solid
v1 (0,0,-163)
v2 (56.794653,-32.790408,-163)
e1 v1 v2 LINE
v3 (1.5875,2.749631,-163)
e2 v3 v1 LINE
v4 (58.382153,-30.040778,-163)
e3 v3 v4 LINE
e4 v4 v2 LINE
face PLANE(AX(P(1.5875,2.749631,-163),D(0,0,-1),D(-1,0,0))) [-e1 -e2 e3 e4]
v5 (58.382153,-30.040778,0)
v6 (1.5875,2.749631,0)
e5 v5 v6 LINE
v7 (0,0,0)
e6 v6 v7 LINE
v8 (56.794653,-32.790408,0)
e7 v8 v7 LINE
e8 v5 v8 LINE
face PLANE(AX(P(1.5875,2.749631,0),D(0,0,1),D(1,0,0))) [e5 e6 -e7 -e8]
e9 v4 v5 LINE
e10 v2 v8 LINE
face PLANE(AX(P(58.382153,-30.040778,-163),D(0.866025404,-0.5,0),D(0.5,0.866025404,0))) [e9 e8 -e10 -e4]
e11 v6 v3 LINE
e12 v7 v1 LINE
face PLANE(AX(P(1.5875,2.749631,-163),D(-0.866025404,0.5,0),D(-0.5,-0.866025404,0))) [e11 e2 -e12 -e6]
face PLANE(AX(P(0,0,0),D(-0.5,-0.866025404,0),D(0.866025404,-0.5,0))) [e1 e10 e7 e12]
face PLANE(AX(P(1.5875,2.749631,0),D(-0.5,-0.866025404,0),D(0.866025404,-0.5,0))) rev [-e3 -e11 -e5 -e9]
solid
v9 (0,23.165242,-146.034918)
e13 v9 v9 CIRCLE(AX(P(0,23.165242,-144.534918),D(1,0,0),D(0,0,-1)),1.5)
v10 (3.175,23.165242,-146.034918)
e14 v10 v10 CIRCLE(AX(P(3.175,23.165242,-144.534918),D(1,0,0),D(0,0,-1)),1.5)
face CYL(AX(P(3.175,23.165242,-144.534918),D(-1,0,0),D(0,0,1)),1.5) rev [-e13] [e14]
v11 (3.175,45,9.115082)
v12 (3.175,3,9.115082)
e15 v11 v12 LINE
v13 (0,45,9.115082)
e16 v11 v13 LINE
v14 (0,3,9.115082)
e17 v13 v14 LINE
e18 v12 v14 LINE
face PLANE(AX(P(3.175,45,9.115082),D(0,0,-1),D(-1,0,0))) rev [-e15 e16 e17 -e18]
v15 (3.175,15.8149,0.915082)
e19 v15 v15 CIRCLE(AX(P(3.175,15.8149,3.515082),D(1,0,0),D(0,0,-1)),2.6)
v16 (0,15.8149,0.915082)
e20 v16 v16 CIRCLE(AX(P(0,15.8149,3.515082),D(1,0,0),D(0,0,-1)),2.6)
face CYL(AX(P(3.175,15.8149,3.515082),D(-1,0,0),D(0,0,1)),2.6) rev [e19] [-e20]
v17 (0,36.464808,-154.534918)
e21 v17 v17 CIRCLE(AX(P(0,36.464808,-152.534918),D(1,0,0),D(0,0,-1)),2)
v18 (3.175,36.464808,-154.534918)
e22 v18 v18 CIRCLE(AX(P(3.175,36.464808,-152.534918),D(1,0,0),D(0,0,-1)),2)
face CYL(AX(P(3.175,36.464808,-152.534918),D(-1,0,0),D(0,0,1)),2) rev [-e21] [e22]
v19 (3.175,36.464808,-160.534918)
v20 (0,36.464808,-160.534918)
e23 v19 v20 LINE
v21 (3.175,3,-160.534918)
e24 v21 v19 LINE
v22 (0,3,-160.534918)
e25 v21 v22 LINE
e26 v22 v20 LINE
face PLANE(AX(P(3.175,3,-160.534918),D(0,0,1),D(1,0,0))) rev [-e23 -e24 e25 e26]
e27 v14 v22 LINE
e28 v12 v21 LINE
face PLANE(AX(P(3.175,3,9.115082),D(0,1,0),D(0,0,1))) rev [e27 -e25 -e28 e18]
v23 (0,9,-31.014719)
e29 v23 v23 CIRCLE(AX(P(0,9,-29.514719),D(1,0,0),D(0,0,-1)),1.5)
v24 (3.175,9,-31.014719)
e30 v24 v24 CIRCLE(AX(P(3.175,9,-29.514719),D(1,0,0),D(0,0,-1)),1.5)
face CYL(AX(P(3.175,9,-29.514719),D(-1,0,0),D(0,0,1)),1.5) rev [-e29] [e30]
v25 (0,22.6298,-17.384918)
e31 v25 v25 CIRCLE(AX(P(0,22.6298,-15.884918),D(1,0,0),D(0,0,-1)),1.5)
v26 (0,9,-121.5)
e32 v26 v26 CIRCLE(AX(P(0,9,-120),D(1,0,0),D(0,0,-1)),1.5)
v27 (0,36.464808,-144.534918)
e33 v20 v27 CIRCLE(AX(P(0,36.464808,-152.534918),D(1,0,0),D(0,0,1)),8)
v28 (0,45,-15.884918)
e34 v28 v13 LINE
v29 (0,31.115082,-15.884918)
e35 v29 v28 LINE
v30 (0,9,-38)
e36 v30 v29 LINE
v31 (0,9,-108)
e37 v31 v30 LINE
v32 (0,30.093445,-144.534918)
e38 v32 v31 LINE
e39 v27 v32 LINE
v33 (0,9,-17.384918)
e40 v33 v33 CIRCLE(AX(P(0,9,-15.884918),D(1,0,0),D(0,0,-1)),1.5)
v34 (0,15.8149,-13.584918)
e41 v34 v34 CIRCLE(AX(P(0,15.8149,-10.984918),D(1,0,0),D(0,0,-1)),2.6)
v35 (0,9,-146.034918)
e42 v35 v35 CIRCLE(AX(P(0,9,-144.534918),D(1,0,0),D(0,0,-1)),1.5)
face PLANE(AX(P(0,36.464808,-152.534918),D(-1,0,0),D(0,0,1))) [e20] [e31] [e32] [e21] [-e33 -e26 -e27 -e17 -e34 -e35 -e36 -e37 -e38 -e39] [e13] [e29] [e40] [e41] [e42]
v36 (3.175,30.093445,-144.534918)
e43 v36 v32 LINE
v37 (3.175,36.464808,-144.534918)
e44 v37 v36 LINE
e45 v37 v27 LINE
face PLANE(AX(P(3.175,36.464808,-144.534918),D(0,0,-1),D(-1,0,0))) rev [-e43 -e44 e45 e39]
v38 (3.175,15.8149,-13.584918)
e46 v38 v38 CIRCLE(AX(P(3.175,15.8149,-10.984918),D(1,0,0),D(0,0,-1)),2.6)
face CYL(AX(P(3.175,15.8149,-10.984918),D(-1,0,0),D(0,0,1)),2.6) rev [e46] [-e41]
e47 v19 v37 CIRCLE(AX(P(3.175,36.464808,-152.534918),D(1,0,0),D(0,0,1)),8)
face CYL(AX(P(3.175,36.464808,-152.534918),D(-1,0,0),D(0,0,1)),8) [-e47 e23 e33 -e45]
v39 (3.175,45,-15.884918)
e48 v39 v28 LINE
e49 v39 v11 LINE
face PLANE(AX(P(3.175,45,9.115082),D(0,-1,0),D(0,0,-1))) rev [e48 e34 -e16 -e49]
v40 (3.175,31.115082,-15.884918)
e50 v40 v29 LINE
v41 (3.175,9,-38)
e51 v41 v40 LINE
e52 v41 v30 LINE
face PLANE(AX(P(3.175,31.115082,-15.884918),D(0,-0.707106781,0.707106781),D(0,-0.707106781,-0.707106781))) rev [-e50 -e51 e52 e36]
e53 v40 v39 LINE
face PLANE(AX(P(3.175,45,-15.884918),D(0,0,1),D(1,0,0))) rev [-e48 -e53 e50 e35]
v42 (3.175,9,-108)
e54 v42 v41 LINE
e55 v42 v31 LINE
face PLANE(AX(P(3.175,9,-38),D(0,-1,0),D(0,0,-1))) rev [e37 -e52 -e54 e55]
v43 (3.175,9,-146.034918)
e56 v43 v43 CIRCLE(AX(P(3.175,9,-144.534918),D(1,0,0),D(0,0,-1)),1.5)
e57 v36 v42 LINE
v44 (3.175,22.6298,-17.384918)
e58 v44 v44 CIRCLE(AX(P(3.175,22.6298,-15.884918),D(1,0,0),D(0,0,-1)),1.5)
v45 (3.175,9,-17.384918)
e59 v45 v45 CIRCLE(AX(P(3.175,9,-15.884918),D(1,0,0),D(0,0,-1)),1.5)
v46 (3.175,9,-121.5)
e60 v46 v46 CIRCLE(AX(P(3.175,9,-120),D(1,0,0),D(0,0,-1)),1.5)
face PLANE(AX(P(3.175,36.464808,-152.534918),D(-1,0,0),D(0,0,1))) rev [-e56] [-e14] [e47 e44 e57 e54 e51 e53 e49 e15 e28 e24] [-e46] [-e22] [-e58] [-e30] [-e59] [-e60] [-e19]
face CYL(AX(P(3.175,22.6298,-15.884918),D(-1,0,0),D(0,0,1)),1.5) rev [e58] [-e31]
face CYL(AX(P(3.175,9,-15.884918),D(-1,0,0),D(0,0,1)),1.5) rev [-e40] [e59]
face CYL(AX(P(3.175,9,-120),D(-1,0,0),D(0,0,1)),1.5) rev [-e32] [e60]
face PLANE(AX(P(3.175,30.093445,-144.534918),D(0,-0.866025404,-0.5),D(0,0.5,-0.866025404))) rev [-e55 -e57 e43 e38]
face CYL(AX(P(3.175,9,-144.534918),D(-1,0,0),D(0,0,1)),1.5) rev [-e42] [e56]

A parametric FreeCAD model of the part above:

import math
import FreeCAD as App
import Part
import Sketcher

V = App.Vector
Q = App.Units.Quantity


def add_polygon(sketch, points):
    """Adds a closed chain of lines whose ends are joined by coincident constraints."""
    first, n = sketch.GeometryCount, len(points)
    for a, b in zip(points, points[1:] + points[:1]):
        sketch.addGeometry(Part.LineSegment(App.Vector(*a, 0), App.Vector(*b, 0)), False)
    for i in range(n):
        sketch.addConstraint(Sketcher.Constraint("Coincident", first + i, 2, first + (i + 1) % n, 1))

doc = App.newDocument("Part")
params = doc.addObject("Spreadsheet::Sheet", "Params")
for row, (alias, value) in enumerate([
    ("sketch1_width", "163 mm"),
    ("pad1_length", "3.175 mm"),
    ("sketch2_diameter", "3 mm"),
    ("sketch2_diameter2", "4 mm"),
    ("sketch2_radius", "8 mm"),
    ("sketch2_diameter3", "5.2 mm"),
    ("sketch2_width", "42 mm"),
    ("pad2_length", "3.175 mm"),
], start=1):
    params.set(f"A{row}", alias)
    params.set(f"B{row}", "=" + value)
    params.setAlias(f"B{row}", alias)

body = doc.addObject("PartDesign::Body", "Body")

# Sketch on an angled plane
sketch1 = body.newObject("Sketcher::SketchObject", "Sketch")
sketch1.Placement = App.Placement(V(0, 0, 0), App.Rotation(V(0, 0, -1), V(0.866025404, -0.5, 0), V(-0.5, -0.866025404, 0), "ZXY"))
add_polygon(sketch1, [(0, 65.580817), (0, 0), (163, 0), (163, 65.580817)])  # lines 0-3
sketch1.addConstraint(Sketcher.Constraint("Vertical", 0))
sketch1.addConstraint(Sketcher.Constraint("Horizontal", 1))
sketch1.addConstraint(Sketcher.Constraint("Vertical", 2))
sketch1.addConstraint(Sketcher.Constraint("Horizontal", 3))
sketch1.addConstraint(Sketcher.Constraint("Coincident", 0, 2, -1, 1))
sketch1.addConstraint(Sketcher.Constraint("DistanceX", 1, 1, 1, 2, Q("163 mm")))
sketch1.addConstraint(Sketcher.Constraint("DistanceY", 0, 2, 0, 1, Q("65.580817 mm")))
sketch1.setExpression("Constraints[9]", "Params.sketch1_width")
pad1 = body.newObject("PartDesign::Pad", "Pad")
pad1.Profile = sketch1
pad1.setExpression("Length", "Params.pad1_length")
pad1.Reversed = True
body2 = doc.addObject("PartDesign::Body", "Body001")

# Sketch on YZ plane
sketch2 = body2.newObject("Sketcher::SketchObject", "Sketch001")
sketch2.AttachmentSupport = (doc.getObject("YZ_Plane001"), [""])
sketch2.MapMode = "FlatFace"
sketch2.addGeometry(Part.LineSegment(V(45, -15.884918, 0), V(45, 9.115082, 0)), False)
sketch2.addGeometry(Part.LineSegment(V(45, 9.115082, 0), V(3, 9.115082, 0)), False)
sketch2.addGeometry(Part.LineSegment(V(3, 9.115082, 0), V(3, -160.534918, 0)), False)
sketch2.addGeometry(Part.LineSegment(V(3, -160.534918, 0), V(36.464808, -160.534918, 0)), False)
sketch2.addGeometry(Part.ArcOfCircle(Part.Circle(V(36.464808, -152.534918, 0), V(0, 0, 1), 8), math.radians(-90), math.radians(90)), False)
sketch2.addGeometry(Part.LineSegment(V(36.464808, -144.534918, 0), V(30.093445, -144.534918, 0)), False)
sketch2.addGeometry(Part.LineSegment(V(30.093445, -144.534918, 0), V(9, -108, 0)), False)
sketch2.addGeometry(Part.LineSegment(V(9, -108, 0), V(9, -38, 0)), False)
sketch2.addGeometry(Part.LineSegment(V(9, -38, 0), V(31.115082, -15.884918, 0)), False)
sketch2.addGeometry(Part.LineSegment(V(31.115082, -15.884918, 0), V(45, -15.884918, 0)), False)
sketch2.addGeometry(Part.Circle(V(9, -144.534918, 0), V(0, 0, 1), 1.5), False)
sketch2.addGeometry(Part.Circle(V(9, -120, 0), V(0, 0, 1), 1.5), False)
sketch2.addGeometry(Part.Circle(V(9, -29.514719, 0), V(0, 0, 1), 1.5), False)
sketch2.addGeometry(Part.Circle(V(9, -15.884918, 0), V(0, 0, 1), 1.5), False)
sketch2.addGeometry(Part.Circle(V(15.8149, -10.984918, 0), V(0, 0, 1), 2.6), False)
sketch2.addGeometry(Part.Circle(V(15.8149, 3.515082, 0), V(0, 0, 1), 2.6), False)
sketch2.addGeometry(Part.Circle(V(22.6298, -15.884918, 0), V(0, 0, 1), 1.5), False)
sketch2.addGeometry(Part.Circle(V(23.165242, -144.534918, 0), V(0, 0, 1), 1.5), False)
sketch2.addGeometry(Part.Circle(V(36.464808, -152.534918, 0), V(0, 0, 1), 2), False)
sketch2.addConstraint(Sketcher.Constraint("Coincident", 0, 2, 1, 1))
sketch2.addConstraint(Sketcher.Constraint("Coincident", 1, 2, 2, 1))
sketch2.addConstraint(Sketcher.Constraint("Coincident", 2, 2, 3, 1))
sketch2.addConstraint(Sketcher.Constraint("Tangent", 3, 2, 4, 1))
sketch2.addConstraint(Sketcher.Constraint("Tangent", 4, 2, 5, 1))
sketch2.addConstraint(Sketcher.Constraint("Coincident", 5, 2, 6, 1))
sketch2.addConstraint(Sketcher.Constraint("Coincident", 6, 2, 7, 1))
sketch2.addConstraint(Sketcher.Constraint("Coincident", 7, 2, 8, 1))
sketch2.addConstraint(Sketcher.Constraint("Coincident", 8, 2, 9, 1))
sketch2.addConstraint(Sketcher.Constraint("Coincident", 9, 2, 0, 1))
sketch2.addConstraint(Sketcher.Constraint("Vertical", 0))
sketch2.addConstraint(Sketcher.Constraint("Horizontal", 1))
sketch2.addConstraint(Sketcher.Constraint("Vertical", 2))
sketch2.addConstraint(Sketcher.Constraint("Horizontal", 3))
sketch2.addConstraint(Sketcher.Constraint("Horizontal", 5))
sketch2.addConstraint(Sketcher.Constraint("Vertical", 7))
sketch2.addConstraint(Sketcher.Constraint("Horizontal", 9))
sketch2.addConstraint(Sketcher.Constraint("Coincident", 18, 3, 4, 3))
sketch2.addConstraint(Sketcher.Constraint("Equal", 10, 11))
sketch2.addConstraint(Sketcher.Constraint("Equal", 11, 12))
sketch2.addConstraint(Sketcher.Constraint("Equal", 12, 13))
sketch2.addConstraint(Sketcher.Constraint("Equal", 14, 15))
sketch2.addConstraint(Sketcher.Constraint("Equal", 13, 16))
sketch2.addConstraint(Sketcher.Constraint("Equal", 16, 17))
sketch2.addConstraint(Sketcher.Constraint("Horizontal", 13, 3, 16, 3))
sketch2.addConstraint(Sketcher.Constraint("Horizontal", 10, 3, 17, 3))
sketch2.addConstraint(Sketcher.Constraint("Horizontal", 17, 3, 4, 2))
sketch2.addConstraint(Sketcher.Constraint("Horizontal", 16, 3, 8, 2))
sketch2.addConstraint(Sketcher.Constraint("Vertical", 10, 3, 11, 3))
sketch2.addConstraint(Sketcher.Constraint("Vertical", 11, 3, 12, 3))
sketch2.addConstraint(Sketcher.Constraint("Vertical", 12, 3, 13, 3))
sketch2.addConstraint(Sketcher.Constraint("Vertical", 14, 3, 15, 3))
sketch2.addConstraint(Sketcher.Constraint("Vertical", 13, 3, 6, 2))
sketch2.addConstraint(Sketcher.Constraint("Diameter", 10, Q("3 mm")))
sketch2.addConstraint(Sketcher.Constraint("Diameter", 18, Q("4 mm")))
sketch2.addConstraint(Sketcher.Constraint("Radius", 4, Q("8 mm")))
sketch2.addConstraint(Sketcher.Constraint("Diameter", 14, Q("5.2 mm")))
sketch2.addConstraint(Sketcher.Constraint("DistanceX", 1, 2, 1, 1, Q("42 mm")))
sketch2.addConstraint(Sketcher.Constraint("DistanceY", 0, 1, 0, 2, Q("25 mm")))
sketch2.addConstraint(Sketcher.Constraint("DistanceY", 7, 1, 7, 2, Q("70 mm")))
sketch2.addConstraint(Sketcher.Constraint("Angle", 6, Q("120 deg")))
sketch2.addConstraint(Sketcher.Constraint("Angle", 8, Q("45 deg")))
sketch2.addConstraint(Sketcher.Constraint("DistanceX", -1, 1, 10, 3, Q("9 mm")))
sketch2.addConstraint(Sketcher.Constraint("DistanceY", 11, 3, -1, 1, Q("120 mm")))
sketch2.addConstraint(Sketcher.Constraint("DistanceX", -1, 1, 0, 2, Q("45 mm")))
sketch2.addConstraint(Sketcher.Constraint("DistanceY", 6, 2, -1, 1, Q("108 mm")))
sketch2.addConstraint(Sketcher.Constraint("DistanceY", 2, 2, 2, 1, Q("169.65 mm")))
sketch2.addConstraint(Sketcher.Constraint("DistanceY", 13, 3, 14, 3, Q("4.9 mm")))
sketch2.addConstraint(Sketcher.Constraint("DistanceY", 14, 3, 15, 3, Q("14.5 mm")))
sketch2.addConstraint(Sketcher.Constraint("DistanceX", 9, 1, 9, 2, Q("13.884918 mm")))
sketch2.addConstraint(Sketcher.Constraint("DistanceX", -1, 1, 14, 3, Q("15.8149 mm")))
sketch2.addConstraint(Sketcher.Constraint("DistanceX", -1, 1, 16, 3, Q("22.6298 mm")))
sketch2.addConstraint(Sketcher.Constraint("DistanceY", 10, 3, 12, 3, Q("115.0202 mm")))
sketch2.addConstraint(Sketcher.Constraint("DistanceX", 3, 1, 3, 2, Q("33.464808 mm")))
sketch2.addConstraint(Sketcher.Constraint("DistanceX", -1, 1, 17, 3, Q("23.165242 mm")))
sketch2.setExpression("Constraints[33]", "Params.sketch2_diameter")
sketch2.setExpression("Constraints[34]", "Params.sketch2_diameter2")
sketch2.setExpression("Constraints[35]", "Params.sketch2_radius")
sketch2.setExpression("Constraints[36]", "Params.sketch2_diameter3")
sketch2.setExpression("Constraints[37]", "Params.sketch2_width")
pad2 = body2.newObject("PartDesign::Pad", "Pad001")
pad2.Profile = sketch2
pad2.setExpression("Length", "Params.pad2_length")

doc.recompute()
